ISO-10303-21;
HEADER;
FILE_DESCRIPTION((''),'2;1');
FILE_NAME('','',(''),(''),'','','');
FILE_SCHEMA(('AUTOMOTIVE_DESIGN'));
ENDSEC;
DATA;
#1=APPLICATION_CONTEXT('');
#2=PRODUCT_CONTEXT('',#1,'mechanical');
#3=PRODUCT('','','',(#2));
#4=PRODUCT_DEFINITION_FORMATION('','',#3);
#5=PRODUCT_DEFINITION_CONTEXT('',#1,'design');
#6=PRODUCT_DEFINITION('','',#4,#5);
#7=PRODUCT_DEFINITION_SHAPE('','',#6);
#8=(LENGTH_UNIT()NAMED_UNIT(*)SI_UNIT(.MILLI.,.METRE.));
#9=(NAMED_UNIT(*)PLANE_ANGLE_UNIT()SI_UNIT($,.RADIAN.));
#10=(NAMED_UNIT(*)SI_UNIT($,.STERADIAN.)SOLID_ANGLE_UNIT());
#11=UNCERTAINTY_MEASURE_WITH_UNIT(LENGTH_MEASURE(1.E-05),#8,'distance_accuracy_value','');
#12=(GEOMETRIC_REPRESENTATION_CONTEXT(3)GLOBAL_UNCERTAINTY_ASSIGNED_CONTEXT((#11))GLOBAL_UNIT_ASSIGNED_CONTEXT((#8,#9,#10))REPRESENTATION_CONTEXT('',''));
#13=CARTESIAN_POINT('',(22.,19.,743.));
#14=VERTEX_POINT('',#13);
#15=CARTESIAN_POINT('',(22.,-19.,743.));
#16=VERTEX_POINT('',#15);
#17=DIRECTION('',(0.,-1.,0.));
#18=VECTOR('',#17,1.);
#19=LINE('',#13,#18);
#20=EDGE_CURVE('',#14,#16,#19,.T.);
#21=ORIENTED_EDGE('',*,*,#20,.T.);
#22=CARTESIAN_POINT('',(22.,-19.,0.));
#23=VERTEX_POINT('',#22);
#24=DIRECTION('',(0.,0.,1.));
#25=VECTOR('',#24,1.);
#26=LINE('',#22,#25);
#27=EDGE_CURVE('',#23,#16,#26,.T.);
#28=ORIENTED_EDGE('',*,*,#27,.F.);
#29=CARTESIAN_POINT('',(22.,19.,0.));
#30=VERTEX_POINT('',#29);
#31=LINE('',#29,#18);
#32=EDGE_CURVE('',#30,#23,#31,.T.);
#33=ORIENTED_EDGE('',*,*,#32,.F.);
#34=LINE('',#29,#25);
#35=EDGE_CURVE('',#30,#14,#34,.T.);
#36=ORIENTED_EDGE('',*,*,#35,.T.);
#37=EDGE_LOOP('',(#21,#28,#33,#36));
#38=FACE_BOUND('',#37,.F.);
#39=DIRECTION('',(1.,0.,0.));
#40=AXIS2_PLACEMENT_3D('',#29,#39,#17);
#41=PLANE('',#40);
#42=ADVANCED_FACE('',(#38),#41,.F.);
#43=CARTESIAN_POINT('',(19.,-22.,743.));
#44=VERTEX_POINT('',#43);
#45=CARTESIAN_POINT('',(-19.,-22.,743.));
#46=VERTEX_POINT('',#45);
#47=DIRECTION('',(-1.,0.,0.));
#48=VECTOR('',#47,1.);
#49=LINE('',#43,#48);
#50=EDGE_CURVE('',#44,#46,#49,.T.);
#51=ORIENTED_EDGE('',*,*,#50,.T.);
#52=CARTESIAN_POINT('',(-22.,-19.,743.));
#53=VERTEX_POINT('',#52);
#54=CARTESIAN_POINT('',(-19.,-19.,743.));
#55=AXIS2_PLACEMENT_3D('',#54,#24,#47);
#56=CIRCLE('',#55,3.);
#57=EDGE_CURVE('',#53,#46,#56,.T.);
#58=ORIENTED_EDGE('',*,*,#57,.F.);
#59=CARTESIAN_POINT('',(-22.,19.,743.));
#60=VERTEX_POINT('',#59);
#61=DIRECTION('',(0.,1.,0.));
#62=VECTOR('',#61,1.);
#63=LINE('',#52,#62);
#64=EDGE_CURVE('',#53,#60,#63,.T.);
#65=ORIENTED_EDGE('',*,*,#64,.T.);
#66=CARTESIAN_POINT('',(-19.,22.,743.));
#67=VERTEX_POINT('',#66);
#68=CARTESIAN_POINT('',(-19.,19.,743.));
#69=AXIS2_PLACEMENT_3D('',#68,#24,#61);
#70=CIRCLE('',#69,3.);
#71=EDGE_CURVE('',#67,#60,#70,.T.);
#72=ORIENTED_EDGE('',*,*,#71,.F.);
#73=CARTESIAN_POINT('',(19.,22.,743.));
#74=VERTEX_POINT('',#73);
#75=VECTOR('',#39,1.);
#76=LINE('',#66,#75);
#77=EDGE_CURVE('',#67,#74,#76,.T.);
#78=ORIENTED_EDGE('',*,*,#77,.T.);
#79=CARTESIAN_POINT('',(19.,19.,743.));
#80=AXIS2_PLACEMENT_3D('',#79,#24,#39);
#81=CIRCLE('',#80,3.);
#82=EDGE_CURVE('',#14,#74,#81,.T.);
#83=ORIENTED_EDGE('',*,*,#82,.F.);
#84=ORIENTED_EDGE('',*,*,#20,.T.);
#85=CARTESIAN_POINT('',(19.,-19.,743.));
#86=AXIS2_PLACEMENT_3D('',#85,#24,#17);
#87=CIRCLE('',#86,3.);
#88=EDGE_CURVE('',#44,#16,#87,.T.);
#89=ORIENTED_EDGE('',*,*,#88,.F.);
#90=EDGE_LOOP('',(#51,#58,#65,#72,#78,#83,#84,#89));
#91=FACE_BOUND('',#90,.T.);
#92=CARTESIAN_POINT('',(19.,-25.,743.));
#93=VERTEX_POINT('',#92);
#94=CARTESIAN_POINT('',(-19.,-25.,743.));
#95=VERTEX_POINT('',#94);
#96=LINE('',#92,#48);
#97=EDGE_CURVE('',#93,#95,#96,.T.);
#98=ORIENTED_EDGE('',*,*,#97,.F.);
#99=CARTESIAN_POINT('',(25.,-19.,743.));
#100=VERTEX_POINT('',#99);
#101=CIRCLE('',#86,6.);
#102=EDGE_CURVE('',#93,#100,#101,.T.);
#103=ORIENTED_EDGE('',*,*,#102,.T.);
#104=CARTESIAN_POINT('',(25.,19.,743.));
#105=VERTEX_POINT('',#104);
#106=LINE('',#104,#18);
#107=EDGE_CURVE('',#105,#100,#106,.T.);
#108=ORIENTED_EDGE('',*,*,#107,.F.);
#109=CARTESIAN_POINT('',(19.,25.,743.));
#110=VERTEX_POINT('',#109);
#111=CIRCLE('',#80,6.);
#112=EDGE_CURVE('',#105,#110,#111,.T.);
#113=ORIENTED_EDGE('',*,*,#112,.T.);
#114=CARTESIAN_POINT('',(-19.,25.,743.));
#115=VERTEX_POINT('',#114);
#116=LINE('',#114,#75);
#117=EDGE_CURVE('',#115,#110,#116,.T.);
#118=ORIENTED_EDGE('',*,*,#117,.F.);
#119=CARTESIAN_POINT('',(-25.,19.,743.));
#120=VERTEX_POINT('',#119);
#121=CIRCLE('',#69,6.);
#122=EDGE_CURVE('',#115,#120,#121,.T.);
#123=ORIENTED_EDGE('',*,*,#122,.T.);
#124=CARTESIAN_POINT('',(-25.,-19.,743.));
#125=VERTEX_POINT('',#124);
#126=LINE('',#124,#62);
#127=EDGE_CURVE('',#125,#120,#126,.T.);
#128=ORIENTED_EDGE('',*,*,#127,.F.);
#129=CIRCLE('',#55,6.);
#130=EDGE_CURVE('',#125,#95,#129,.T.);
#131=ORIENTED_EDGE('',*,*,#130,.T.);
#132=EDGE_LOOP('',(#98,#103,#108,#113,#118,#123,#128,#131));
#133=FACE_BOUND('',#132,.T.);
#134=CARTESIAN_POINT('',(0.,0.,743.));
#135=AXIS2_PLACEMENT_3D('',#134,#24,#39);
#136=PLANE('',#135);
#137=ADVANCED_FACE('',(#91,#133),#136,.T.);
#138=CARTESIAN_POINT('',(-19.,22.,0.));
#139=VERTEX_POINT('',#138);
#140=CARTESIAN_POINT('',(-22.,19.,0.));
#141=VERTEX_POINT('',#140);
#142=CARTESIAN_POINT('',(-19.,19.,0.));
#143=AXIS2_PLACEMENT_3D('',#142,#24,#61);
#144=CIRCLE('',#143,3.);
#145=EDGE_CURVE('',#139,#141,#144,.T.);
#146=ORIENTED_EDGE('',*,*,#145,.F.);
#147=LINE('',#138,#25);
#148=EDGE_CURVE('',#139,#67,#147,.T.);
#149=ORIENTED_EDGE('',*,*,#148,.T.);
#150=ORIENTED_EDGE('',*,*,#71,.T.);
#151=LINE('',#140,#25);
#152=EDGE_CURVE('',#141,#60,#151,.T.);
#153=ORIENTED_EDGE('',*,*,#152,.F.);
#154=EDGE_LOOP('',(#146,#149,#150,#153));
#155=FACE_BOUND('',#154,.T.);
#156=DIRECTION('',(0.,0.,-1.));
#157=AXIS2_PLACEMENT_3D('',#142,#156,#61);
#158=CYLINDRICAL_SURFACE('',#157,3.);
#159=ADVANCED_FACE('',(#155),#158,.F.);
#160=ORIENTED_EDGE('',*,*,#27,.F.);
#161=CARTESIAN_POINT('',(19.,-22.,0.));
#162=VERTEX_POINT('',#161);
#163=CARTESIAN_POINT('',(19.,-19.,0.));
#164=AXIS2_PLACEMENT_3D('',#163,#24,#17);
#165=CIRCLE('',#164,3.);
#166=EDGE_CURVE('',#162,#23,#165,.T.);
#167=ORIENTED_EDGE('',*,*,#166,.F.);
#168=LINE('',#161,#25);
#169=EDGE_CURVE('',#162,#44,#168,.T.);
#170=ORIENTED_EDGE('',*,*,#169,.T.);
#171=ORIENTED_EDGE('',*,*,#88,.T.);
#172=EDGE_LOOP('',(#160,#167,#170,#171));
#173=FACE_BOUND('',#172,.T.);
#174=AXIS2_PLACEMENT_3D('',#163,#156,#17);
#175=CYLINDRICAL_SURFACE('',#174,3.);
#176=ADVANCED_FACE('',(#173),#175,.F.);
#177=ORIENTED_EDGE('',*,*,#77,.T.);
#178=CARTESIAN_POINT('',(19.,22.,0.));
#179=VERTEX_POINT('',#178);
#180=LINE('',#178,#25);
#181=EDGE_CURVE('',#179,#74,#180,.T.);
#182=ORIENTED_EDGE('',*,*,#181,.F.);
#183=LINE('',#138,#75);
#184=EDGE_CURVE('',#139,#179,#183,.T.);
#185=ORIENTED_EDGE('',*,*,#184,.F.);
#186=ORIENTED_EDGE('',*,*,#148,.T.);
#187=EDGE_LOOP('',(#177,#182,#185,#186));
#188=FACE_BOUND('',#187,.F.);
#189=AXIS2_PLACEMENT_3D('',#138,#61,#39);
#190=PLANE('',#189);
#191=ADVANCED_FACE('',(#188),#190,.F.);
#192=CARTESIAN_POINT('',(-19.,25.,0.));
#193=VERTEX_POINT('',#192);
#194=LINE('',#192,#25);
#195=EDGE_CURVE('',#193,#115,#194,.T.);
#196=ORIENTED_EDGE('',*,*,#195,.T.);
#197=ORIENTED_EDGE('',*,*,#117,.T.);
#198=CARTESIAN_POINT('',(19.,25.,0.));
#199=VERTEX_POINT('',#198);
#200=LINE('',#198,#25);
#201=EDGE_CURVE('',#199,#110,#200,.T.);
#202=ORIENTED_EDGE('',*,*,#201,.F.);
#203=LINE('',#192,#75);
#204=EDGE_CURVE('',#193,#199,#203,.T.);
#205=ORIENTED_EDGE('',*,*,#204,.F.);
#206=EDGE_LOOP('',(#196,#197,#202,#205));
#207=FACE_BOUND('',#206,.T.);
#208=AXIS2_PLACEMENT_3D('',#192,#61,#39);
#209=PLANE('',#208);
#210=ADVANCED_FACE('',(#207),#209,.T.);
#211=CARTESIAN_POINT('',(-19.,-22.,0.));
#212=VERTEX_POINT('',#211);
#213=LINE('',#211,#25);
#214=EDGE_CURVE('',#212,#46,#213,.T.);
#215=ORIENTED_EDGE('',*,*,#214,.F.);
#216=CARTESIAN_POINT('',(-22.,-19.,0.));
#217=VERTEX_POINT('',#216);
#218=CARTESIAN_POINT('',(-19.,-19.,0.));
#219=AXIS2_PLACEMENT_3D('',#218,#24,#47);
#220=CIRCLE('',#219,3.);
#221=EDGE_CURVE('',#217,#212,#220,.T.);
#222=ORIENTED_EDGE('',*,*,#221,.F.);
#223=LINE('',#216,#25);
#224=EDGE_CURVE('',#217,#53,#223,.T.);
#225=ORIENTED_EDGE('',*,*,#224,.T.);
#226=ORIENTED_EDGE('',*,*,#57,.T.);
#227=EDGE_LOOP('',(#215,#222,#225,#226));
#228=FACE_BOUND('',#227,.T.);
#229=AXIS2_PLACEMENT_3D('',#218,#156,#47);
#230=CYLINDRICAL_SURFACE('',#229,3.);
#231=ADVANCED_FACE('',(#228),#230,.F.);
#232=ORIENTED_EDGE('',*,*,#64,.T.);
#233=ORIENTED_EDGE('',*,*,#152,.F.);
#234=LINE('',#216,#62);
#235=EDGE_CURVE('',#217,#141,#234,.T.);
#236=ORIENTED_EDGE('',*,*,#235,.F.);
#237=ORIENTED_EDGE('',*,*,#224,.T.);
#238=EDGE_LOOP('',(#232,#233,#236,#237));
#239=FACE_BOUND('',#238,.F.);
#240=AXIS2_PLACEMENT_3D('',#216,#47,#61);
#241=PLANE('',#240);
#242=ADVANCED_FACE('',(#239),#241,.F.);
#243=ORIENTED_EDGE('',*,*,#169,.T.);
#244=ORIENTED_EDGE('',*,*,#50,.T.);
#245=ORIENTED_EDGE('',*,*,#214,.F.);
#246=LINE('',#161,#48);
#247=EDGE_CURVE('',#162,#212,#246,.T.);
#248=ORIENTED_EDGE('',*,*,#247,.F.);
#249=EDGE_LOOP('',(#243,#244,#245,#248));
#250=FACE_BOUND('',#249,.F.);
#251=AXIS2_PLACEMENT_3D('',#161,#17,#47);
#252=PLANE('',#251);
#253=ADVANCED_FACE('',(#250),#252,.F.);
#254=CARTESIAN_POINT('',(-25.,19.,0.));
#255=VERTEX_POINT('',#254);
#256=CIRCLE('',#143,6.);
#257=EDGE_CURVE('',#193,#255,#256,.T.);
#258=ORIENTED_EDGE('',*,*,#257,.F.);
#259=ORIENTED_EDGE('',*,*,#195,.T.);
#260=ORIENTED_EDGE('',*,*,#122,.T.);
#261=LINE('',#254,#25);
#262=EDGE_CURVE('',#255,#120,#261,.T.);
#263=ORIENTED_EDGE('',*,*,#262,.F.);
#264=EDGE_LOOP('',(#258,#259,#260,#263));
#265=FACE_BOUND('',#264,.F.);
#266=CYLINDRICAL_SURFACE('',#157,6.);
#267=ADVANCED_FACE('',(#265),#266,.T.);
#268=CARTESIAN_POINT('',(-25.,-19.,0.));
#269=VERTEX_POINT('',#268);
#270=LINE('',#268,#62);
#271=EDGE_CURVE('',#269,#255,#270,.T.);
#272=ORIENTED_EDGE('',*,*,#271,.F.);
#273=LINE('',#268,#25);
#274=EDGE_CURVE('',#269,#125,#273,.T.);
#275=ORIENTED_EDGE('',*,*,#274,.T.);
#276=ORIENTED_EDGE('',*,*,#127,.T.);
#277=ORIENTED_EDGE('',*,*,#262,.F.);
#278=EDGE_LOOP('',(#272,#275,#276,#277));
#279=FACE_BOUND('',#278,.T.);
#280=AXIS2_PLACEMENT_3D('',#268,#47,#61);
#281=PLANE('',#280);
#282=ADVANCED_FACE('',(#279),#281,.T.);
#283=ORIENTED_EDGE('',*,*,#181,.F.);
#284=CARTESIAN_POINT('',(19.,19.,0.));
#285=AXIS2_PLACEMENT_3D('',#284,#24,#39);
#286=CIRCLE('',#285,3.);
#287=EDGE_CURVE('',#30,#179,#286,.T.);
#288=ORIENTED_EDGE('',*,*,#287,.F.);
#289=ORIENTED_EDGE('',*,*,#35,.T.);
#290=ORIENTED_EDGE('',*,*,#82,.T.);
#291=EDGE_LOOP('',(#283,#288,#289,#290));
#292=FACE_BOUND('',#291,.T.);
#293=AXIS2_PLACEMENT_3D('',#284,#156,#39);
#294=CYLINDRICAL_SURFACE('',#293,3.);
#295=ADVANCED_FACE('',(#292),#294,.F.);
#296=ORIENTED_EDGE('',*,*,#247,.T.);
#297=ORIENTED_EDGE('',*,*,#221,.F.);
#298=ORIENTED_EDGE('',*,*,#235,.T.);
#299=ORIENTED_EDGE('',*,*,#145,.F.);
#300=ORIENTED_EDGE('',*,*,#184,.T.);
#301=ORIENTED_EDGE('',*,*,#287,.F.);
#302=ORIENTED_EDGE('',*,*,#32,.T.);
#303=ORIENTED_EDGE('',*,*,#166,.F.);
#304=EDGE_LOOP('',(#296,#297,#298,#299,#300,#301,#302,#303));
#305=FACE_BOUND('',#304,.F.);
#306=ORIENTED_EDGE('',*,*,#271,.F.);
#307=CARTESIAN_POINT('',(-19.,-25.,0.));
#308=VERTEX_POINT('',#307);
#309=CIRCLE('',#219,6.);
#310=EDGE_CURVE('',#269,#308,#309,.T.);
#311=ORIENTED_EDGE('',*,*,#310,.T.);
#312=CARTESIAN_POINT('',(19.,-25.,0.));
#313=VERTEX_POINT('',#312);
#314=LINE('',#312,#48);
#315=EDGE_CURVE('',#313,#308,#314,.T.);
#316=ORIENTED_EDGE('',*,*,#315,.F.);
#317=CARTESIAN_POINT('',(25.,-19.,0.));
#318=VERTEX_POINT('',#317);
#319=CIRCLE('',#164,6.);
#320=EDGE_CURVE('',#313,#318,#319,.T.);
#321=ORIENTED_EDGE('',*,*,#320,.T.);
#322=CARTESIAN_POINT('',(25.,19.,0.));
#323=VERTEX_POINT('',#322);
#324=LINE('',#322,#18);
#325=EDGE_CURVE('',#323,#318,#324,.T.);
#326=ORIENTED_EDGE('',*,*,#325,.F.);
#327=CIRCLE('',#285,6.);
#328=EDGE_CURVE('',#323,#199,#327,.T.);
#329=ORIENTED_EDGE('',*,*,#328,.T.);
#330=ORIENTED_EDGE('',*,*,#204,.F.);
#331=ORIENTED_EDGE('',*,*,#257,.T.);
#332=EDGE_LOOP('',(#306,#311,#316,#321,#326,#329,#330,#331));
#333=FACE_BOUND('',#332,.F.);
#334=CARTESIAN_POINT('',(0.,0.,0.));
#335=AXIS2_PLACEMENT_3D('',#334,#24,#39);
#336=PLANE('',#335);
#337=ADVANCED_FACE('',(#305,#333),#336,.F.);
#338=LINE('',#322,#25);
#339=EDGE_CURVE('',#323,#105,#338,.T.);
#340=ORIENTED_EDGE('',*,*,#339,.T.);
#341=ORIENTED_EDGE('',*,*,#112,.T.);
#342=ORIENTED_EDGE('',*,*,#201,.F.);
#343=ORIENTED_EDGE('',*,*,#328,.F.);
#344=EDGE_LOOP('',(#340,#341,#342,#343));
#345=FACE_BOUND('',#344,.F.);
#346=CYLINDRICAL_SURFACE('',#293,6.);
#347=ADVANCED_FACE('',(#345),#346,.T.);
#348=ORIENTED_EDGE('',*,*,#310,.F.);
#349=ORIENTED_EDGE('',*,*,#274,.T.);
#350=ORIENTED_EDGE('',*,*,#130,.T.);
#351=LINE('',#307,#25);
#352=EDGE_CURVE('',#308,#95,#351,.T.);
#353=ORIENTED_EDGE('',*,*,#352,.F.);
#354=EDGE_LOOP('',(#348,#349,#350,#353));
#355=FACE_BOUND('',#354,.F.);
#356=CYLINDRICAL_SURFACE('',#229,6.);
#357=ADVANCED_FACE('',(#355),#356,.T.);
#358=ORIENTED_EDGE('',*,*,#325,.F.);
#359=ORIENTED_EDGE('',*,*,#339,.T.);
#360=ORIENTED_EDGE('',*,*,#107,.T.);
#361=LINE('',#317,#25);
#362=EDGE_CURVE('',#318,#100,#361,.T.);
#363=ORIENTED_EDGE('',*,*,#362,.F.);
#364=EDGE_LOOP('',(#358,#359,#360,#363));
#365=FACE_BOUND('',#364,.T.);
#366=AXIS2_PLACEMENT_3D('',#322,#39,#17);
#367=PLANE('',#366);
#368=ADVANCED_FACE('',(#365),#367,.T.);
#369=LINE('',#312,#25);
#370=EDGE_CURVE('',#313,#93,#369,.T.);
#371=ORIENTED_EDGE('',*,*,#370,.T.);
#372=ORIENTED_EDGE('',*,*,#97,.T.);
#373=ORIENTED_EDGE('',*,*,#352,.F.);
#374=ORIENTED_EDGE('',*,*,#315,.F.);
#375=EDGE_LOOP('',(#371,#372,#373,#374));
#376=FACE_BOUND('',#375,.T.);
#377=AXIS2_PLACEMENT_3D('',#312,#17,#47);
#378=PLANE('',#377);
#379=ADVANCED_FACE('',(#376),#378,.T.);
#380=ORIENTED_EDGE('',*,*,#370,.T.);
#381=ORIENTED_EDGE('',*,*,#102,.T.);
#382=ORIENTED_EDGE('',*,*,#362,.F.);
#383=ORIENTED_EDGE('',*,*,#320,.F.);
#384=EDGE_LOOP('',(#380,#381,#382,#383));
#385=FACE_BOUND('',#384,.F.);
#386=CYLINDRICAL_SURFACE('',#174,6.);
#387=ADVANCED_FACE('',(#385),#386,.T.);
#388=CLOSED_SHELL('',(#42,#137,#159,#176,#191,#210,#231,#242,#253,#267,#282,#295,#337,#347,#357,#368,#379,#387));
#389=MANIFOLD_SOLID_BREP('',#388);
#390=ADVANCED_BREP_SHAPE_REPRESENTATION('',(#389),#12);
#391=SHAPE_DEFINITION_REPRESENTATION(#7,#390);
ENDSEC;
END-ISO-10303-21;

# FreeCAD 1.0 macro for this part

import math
import FreeCAD as App
import Part
import Sketcher

doc = App.newDocument("Part")
body = doc.addObject("PartDesign::Body", "Body")

# Sketch on XY plane
sketch1 = body.newObject("Sketcher::SketchObject", "Sketch")
sketch1.AttachmentSupport = (doc.getObject("XY_Plane"), [""])
sketch1.MapMode = "FlatFace"
sketch1.addGeometry(Part.LineSegment(App.Vector(-25, 19, 0), App.Vector(-25, -19, 0)), False)
sketch1.addGeometry(Part.ArcOfCircle(Part.Circle(App.Vector(-19, -19, 0), App.Vector(0, 0, 1), 6), math.radians(180), math.radians(270)), False)
sketch1.addGeometry(Part.LineSegment(App.Vector(-19, -25, 0), App.Vector(19, -25, 0)), False)
sketch1.addGeometry(Part.ArcOfCircle(Part.Circle(App.Vector(19, -19, 0), App.Vector(0, 0, 1), 6), math.radians(-90), math.radians(0)), False)
sketch1.addGeometry(Part.LineSegment(App.Vector(25, -19, 0), App.Vector(25, 19, 0)), False)
sketch1.addGeometry(Part.ArcOfCircle(Part.Circle(App.Vector(19, 19, 0), App.Vector(0, 0, 1), 6), math.radians(0), math.radians(90)), False)
sketch1.addGeometry(Part.LineSegment(App.Vector(19, 25, 0), App.Vector(-19, 25, 0)), False)
sketch1.addGeometry(Part.ArcOfCircle(Part.Circle(App.Vector(-19, 19, 0), App.Vector(0, 0, 1), 6), math.radians(90), math.radians(180)), False)
sketch1.addGeometry(Part.ArcOfCircle(Part.Circle(App.Vector(-19, 19, 0), App.Vector(0, 0, 1), 3), math.radians(90), math.radians(180)), False)
sketch1.addGeometry(Part.LineSegment(App.Vector(-19, 22, 0), App.Vector(19, 22, 0)), False)
sketch1.addGeometry(Part.ArcOfCircle(Part.Circle(App.Vector(19, 19, 0), App.Vector(0, 0, 1), 3), math.radians(0), math.radians(90)), False)
sketch1.addGeometry(Part.LineSegment(App.Vector(22, 19, 0), App.Vector(22, -19, 0)), False)
sketch1.addGeometry(Part.ArcOfCircle(Part.Circle(App.Vector(19, -19, 0), App.Vector(0, 0, 1), 3), math.radians(-90), math.radians(0)), False)
sketch1.addGeometry(Part.LineSegment(App.Vector(19, -22, 0), App.Vector(-19, -22, 0)), False)
sketch1.addGeometry(Part.ArcOfCircle(Part.Circle(App.Vector(-19, -19, 0), App.Vector(0, 0, 1), 3), math.radians(180), math.radians(270)), False)
sketch1.addGeometry(Part.LineSegment(App.Vector(-22, -19, 0), App.Vector(-22, 19, 0)), False)
sketch1.addConstraint(Sketcher.Constraint("Tangent", 0, 2, 1, 1))
sketch1.addConstraint(Sketcher.Constraint("Tangent", 1, 2, 2, 1))
sketch1.addConstraint(Sketcher.Constraint("Tangent", 2, 2, 3, 1))
sketch1.addConstraint(Sketcher.Constraint("Tangent", 3, 2, 4, 1))
sketch1.addConstraint(Sketcher.Constraint("Tangent", 4, 2, 5, 1))
sketch1.addConstraint(Sketcher.Constraint("Tangent", 5, 2, 6, 1))
sketch1.addConstraint(Sketcher.Constraint("Tangent", 6, 2, 7, 1))
sketch1.addConstraint(Sketcher.Constraint("Tangent", 7, 2, 0, 1))
sketch1.addConstraint(Sketcher.Constraint("Tangent", 8, 1, 9, 1))
sketch1.addConstraint(Sketcher.Constraint("Tangent", 9, 2, 10, 2))
sketch1.addConstraint(Sketcher.Constraint("Tangent", 10, 1, 11, 1))
sketch1.addConstraint(Sketcher.Constraint("Tangent", 11, 2, 12, 2))
sketch1.addConstraint(Sketcher.Constraint("Tangent", 12, 1, 13, 1))
sketch1.addConstraint(Sketcher.Constraint("Tangent", 13, 2, 14, 2))
sketch1.addConstraint(Sketcher.Constraint("Tangent", 14, 1, 15, 1))
sketch1.addConstraint(Sketcher.Constraint("Tangent", 15, 2, 8, 2))
sketch1.addConstraint(Sketcher.Constraint("Vertical", 0))
sketch1.addConstraint(Sketcher.Constraint("Horizontal", 2))
sketch1.addConstraint(Sketcher.Constraint("Vertical", 4))
sketch1.addConstraint(Sketcher.Constraint("Horizontal", 6))
sketch1.addConstraint(Sketcher.Constraint("Horizontal", 9))
sketch1.addConstraint(Sketcher.Constraint("Vertical", 11))
sketch1.addConstraint(Sketcher.Constraint("Horizontal", 13))
sketch1.addConstraint(Sketcher.Constraint("Vertical", 15))
sketch1.addConstraint(Sketcher.Constraint("Coincident", 8, 3, 7, 3))
sketch1.addConstraint(Sketcher.Constraint("Coincident", 10, 3, 5, 3))
sketch1.addConstraint(Sketcher.Constraint("Coincident", 12, 3, 3, 3))
sketch1.addConstraint(Sketcher.Constraint("Equal", 1, 3))
sketch1.addConstraint(Sketcher.Constraint("Equal", 3, 5))
sketch1.addConstraint(Sketcher.Constraint("Equal", 5, 7))
sketch1.addConstraint(Sketcher.Constraint("Equal", 12, 14))
sketch1.addConstraint(Sketcher.Constraint("Symmetric", 1, 3, 5, 3, -1, 1))
sketch1.addConstraint(Sketcher.Constraint("Equal", 13, 0))
sketch1.addConstraint(Sketcher.Constraint("Radius", 1, 6.0))
sketch1.addConstraint(Sketcher.Constraint("Radius", 8, 3.0))
sketch1.addConstraint(Sketcher.Constraint("DistanceX", 0, 2, -1, 1, 25.0))
pad1 = body.newObject("PartDesign::Pad", "Pad")
pad1.Profile = sketch1
pad1.Length = 743

doc.recompute()
